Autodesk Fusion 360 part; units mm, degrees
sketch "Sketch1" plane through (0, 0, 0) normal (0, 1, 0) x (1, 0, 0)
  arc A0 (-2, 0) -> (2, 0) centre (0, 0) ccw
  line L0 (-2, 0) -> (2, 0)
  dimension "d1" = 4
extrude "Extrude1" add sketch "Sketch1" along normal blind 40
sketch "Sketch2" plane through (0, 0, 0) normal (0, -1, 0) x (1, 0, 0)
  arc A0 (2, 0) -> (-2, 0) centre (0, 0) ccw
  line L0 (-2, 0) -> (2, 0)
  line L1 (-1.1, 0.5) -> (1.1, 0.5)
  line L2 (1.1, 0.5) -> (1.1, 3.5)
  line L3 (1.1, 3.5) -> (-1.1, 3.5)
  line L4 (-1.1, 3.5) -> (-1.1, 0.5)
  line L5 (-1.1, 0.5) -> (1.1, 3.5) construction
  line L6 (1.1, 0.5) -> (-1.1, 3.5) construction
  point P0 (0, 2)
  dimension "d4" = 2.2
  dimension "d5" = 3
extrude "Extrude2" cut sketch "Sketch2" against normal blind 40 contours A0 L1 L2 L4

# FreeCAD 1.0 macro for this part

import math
import FreeCAD as App
import Part
import Sketcher

V = App.Vector

doc = App.newDocument("Part")
body = doc.addObject("PartDesign::Body", "Body")

# Sketch on XZ plane
sketch1 = body.newObject("Sketcher::SketchObject", "Sketch")
sketch1.AttachmentSupport = (doc.getObject("XZ_Plane"), [""])
sketch1.MapMode = "FlatFace"
sketch1.addGeometry([
    Part.LineSegment(V(2, 0, 0), V(-2, 0, 0)),
    Part.ArcOfCircle(Part.Circle(V(0, 0, 0), V(0, 0, 1), 2), math.radians(0), math.radians(180)),
], False)
sketch1.addConstraint([
    Sketcher.Constraint("Coincident", 0, 1, 1, 1),
    Sketcher.Constraint("Coincident", 1, 2, 0, 2),
    Sketcher.Constraint("Horizontal", 0),
    Sketcher.Constraint("Coincident", 1, 3, -1, 1),
    Sketcher.Constraint("PointOnObject", 0, 1, -1),
    Sketcher.Constraint("Radius", 1, 2.0),
])
pad1 = body.newObject("PartDesign::Pad", "Pad")
pad1.Profile = sketch1
pad1.Length = 40
pad1.Reversed = True

# Sketch on XZ plane
sketch2 = body.newObject("Sketcher::SketchObject", "Sketch001")
sketch2.AttachmentSupport = (doc.getObject("XZ_Plane"), [""])
sketch2.MapMode = "FlatFace"
sketch2.addGeometry([
    Part.LineSegment(V(1.1, 0.5, 0), V(1.1, 1.7, 0)),
    Part.ArcOfCircle(Part.Circle(V(0, 0, 0), V(0, 0, 1), 2), math.radians(57), math.radians(123)),
    Part.LineSegment(V(-1.1, 1.7, 0), V(-1.1, 0.5, 0)),
    Part.LineSegment(V(-1.1, 0.5, 0), V(1.1, 0.5, 0)),
], False)
sketch2.addConstraint([
    Sketcher.Constraint("Coincident", 0, 2, 1, 1),
    Sketcher.Constraint("Coincident", 1, 2, 2, 1),
    Sketcher.Constraint("Coincident", 2, 2, 3, 1),
    Sketcher.Constraint("Coincident", 3, 2, 0, 1),
    Sketcher.Constraint("Vertical", 0),
    Sketcher.Constraint("Vertical", 2),
    Sketcher.Constraint("Horizontal", 3),
    Sketcher.Constraint("Coincident", 1, 3, -1, 1),
    Sketcher.Constraint("Horizontal", 0, 2, 1, 2),
    Sketcher.Constraint("DistanceX", 3, 1, 3, 2, 2.2),
    Sketcher.Constraint("Radius", 1, 2.0),
    Sketcher.Constraint("DistanceY", -1, 1, 2, 2, 0.5),
])
pocket1 = body.newObject("PartDesign::Pocket", "Pocket")
pocket1.Profile = sketch2
pocket1.Length = 40

doc.recompute()
